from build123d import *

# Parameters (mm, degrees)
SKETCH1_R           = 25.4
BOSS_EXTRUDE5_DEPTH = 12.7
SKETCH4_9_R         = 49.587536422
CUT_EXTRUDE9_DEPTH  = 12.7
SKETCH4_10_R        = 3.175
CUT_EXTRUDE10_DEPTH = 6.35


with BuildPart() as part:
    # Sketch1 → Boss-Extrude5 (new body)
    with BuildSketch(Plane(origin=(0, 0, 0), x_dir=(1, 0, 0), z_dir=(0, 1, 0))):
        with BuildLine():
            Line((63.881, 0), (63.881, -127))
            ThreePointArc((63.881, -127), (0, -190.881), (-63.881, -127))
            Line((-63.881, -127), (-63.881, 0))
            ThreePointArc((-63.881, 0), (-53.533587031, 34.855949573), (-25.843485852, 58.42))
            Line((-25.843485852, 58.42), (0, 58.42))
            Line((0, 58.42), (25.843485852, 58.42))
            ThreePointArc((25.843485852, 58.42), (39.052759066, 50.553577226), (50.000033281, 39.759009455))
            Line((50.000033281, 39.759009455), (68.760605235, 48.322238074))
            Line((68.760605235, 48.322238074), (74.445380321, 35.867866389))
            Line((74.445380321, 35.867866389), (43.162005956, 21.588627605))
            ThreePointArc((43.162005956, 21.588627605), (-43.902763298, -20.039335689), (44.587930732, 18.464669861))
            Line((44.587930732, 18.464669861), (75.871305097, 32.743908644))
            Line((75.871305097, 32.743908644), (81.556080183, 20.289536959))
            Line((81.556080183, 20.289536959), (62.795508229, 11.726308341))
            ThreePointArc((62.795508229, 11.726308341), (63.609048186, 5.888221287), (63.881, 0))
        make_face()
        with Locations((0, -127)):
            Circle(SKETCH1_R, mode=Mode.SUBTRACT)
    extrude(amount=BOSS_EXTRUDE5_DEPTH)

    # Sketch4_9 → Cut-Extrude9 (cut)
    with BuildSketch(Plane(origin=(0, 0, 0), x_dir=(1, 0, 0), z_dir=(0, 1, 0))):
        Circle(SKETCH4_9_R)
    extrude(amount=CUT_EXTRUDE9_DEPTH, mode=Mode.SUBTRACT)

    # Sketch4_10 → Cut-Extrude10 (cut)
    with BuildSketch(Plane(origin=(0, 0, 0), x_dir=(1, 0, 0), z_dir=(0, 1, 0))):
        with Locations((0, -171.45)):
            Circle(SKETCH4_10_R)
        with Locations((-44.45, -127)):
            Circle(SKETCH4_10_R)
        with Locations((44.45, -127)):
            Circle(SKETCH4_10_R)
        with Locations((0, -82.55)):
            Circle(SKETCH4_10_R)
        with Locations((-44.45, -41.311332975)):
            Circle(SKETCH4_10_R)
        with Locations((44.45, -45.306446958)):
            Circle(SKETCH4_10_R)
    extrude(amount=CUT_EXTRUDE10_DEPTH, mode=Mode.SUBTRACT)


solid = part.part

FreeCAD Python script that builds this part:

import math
import FreeCAD as App
import Part
import Sketcher
Q = App.Units.Quantity

doc = App.newDocument("Part")
params = doc.addObject("Spreadsheet::Sheet", "Params")
for row, (alias, value) in enumerate([
    ("sketch1_diameter", "2 in"),
    ("sketch1_radius", "1.9 in"),
    ("sketch1_height", "5 in"),
    ("sketch1_radius2", "2.515 in"),
    ("pad1_length", "0.5 in"),
    ("pocket1_length", "0.5 in"),
    ("sketch3_diameter", "0.25 in"),
    ("pocket2_length", "0.25 in"),
], start=1):
    params.set(f"A{row}", alias)
    params.set(f"B{row}", "=" + value)
    params.setAlias(f"B{row}", alias)

body = doc.addObject("PartDesign::Body", "Body")

# Sketch on XZ plane
sketch1 = body.newObject("Sketcher::SketchObject", "Sketch")
sketch1.AttachmentSupport = (doc.getObject("XZ_Plane"), [""])
sketch1.MapMode = "FlatFace"
sketch1.addGeometry([
    Part.LineSegment(App.Vector(63.9, 127, 0), App.Vector(63.9, 0, 0)),  # 0
    Part.ArcOfCircle(Part.Circle(App.Vector(0, 0, 0), App.Vector(0, 0, 1), 63.9), math.radians(-10.58), math.radians(0)),  # 1
    Part.LineSegment(App.Vector(62.8, -11.7, 0), App.Vector(81.6, -20.3, 0)),  # 2
    Part.LineSegment(App.Vector(81.6, -20.3, 0), App.Vector(75.9, -32.7, 0)),  # 3
    Part.LineSegment(App.Vector(75.9, -32.7, 0), App.Vector(44.6, -18.5, 0)),  # 4
    Part.ArcOfCircle(Part.Circle(App.Vector(0, 0, 0), App.Vector(0, 0, 1), 48.3), math.radians(-22), math.radians(333)),  # 5
    Part.LineSegment(App.Vector(43.2, -21.6, 0), App.Vector(74.4, -35.9, 0)),  # 6
    Part.LineSegment(App.Vector(74.4, -35.9, 0), App.Vector(68.8, -48.3, 0)),  # 7
    Part.LineSegment(App.Vector(68.8, -48.3, 0), App.Vector(50, -39.8, 0)),  # 8
    Part.ArcOfCircle(Part.Circle(App.Vector(0, 0, 0), App.Vector(0, 0, 1), 63.9), math.radians(-66), math.radians(-38)),  # 9
    Part.LineSegment(App.Vector(25.8, -58.4, 0), App.Vector(-25.8, -58.4, 0)),  # 10
    Part.ArcOfCircle(Part.Circle(App.Vector(0, 0, 0), App.Vector(0, 0, 1), 63.9), math.radians(180), math.radians(246)),  # 11
    Part.LineSegment(App.Vector(-63.9, 0, 0), App.Vector(-63.9, 127, 0)),  # 12
    Part.ArcOfCircle(Part.Circle(App.Vector(0, 127, 0), App.Vector(0, 0, 1), 63.9), math.radians(0), math.radians(180)),  # 13
    Part.Circle(App.Vector(0, 127, 0), App.Vector(0, 0, 1), 25.4),  # 14
], False)
sketch1.addConstraint([
    Sketcher.Constraint("Tangent", 0, 2, 1, 2),
    Sketcher.Constraint("Coincident", 1, 1, 2, 1),
    Sketcher.Constraint("Coincident", 2, 2, 3, 1),
    Sketcher.Constraint("Coincident", 3, 2, 4, 1),
    Sketcher.Constraint("Coincident", 4, 2, 5, 1),
    Sketcher.Constraint("Coincident", 5, 2, 6, 1),
    Sketcher.Constraint("Coincident", 6, 2, 7, 1),
    Sketcher.Constraint("Coincident", 7, 2, 8, 1),
    Sketcher.Constraint("Coincident", 8, 2, 9, 2),
    Sketcher.Constraint("Coincident", 9, 1, 10, 1),
    Sketcher.Constraint("Coincident", 10, 2, 11, 2),
    Sketcher.Constraint("Tangent", 11, 1, 12, 1),
    Sketcher.Constraint("Tangent", 12, 2, 13, 2),
    Sketcher.Constraint("Tangent", 13, 1, 0, 1),
    Sketcher.Constraint("Vertical", 0),
    Sketcher.Constraint("Horizontal", 10),
    Sketcher.Constraint("Vertical", 12),
    Sketcher.Constraint("Coincident", 1, 3, -1, 1),
    Sketcher.Constraint("Coincident", 5, 3, -1, 1),
    Sketcher.Constraint("Coincident", 9, 3, -1, 1),
    Sketcher.Constraint("Coincident", 11, 3, -1, 1),
    Sketcher.Constraint("Coincident", 14, 3, 13, 3),
    Sketcher.Constraint("Equal", 1, 9),
    Sketcher.Constraint("Equal", 9, 11),
    Sketcher.Constraint("Perpendicular", 2, 3),
    Sketcher.Constraint("Perpendicular", 3, 4),
    Sketcher.Constraint("Parallel", 4, 6),
    Sketcher.Constraint("Perpendicular", 6, 7),
    Sketcher.Constraint("Perpendicular", 7, 8),
    Sketcher.Constraint("Equal", 4, 6),
    Sketcher.Constraint("Equal", 3, 7),
    Sketcher.Constraint("Equal", 2, 8),
    Sketcher.Constraint("Diameter", 14, Q("2 in")),
    Sketcher.Constraint("Radius", 5, Q("1.9 in")),
    Sketcher.Constraint("DistanceY", 0, 2, 0, 1, Q("5 in")),
    Sketcher.Constraint("Radius", 1, Q("2.515 in")),
    Sketcher.Constraint("DistanceY", 9, 1, -1, 1, Q("2.3 in")),
    Sketcher.Constraint("DistanceY", 3, 2, 1, 1, Q("21.0176 mm")),
    Sketcher.Constraint("DistanceX", 5, 2, 3, 2, Q("32.709299 mm")),
    Sketcher.Constraint("DistanceX", 6, 2, 2, 2, Q("7.1107 mm")),
    Sketcher.Constraint("DistanceY", 7, 2, 2, 2, Q("28.032701 mm")),
])
sketch1.setExpression("Constraints[32]", "Params.sketch1_diameter")
sketch1.setExpression("Constraints[33]", "Params.sketch1_radius")
sketch1.setExpression("Constraints[34]", "Params.sketch1_height")
sketch1.setExpression("Constraints[35]", "Params.sketch1_radius2")
pad1 = body.newObject("PartDesign::Pad", "Pad")
pad1.Profile = sketch1
pad1.setExpression("Length", "Params.pad1_length")
pad1.Reversed = True

# Sketch on XZ plane
sketch2 = body.newObject("Sketcher::SketchObject", "Sketch001")
sketch2.AttachmentSupport = (doc.getObject("XZ_Plane"), [""])
sketch2.MapMode = "FlatFace"
sketch2.addGeometry(Part.Circle(App.Vector(0, 0, 0), App.Vector(0, 0, 1), 50), False)
sketch2.addConstraint([
    Sketcher.Constraint("Coincident", 0, 3, -1, 1),
    Sketcher.Constraint("Diameter", 0, Q("99.175073 mm")),
])
pocket1 = body.newObject("PartDesign::Pocket", "Pocket")
pocket1.Profile = sketch2
pocket1.setExpression("Length", "Params.pocket1_length")

# Sketch on XZ plane
sketch3 = body.newObject("Sketcher::SketchObject", "Sketch002")
sketch3.AttachmentSupport = (doc.getObject("XZ_Plane"), [""])
sketch3.MapMode = "FlatFace"
sketch3.addGeometry([
    Part.Circle(App.Vector(0, 171.4, 0), App.Vector(0, 0, 1), 3.2),  # 0
    Part.Circle(App.Vector(-44.5, 127, 0), App.Vector(0, 0, 1), 3.2),  # 1
    Part.Circle(App.Vector(44.5, 127, 0), App.Vector(0, 0, 1), 3.2),  # 2
    Part.Circle(App.Vector(0, 82.5, 0), App.Vector(0, 0, 1), 3.2),  # 3
    Part.Circle(App.Vector(-44.5, 41.3, 0), App.Vector(0, 0, 1), 3.2),  # 4
    Part.Circle(App.Vector(44.5, 45.3, 0), App.Vector(0, 0, 1), 3.2),  # 5
], False)
sketch3.addConstraint([
    Sketcher.Constraint("Equal", 0, 1),
    Sketcher.Constraint("Equal", 1, 2),
    Sketcher.Constraint("Equal", 2, 3),
    Sketcher.Constraint("Equal", 3, 4),
    Sketcher.Constraint("Equal", 4, 5),
    Sketcher.Constraint("Symmetric", 1, 3, 2, 3, -2),
    Sketcher.Constraint("PointOnObject", 0, 3, -2),
    Sketcher.Constraint("PointOnObject", 3, 3, -2),
    Sketcher.Constraint("Vertical", 1, 3, 4, 3),
    Sketcher.Constraint("Vertical", 2, 3, 5, 3),
    Sketcher.Constraint("Diameter", 0, Q("0.25 in")),
    Sketcher.Constraint("DistanceY", -1, 1, 1, 3, Q("5 in")),
    Sketcher.Constraint("DistanceX", 1, 3, 2, 3, Q("3.5 in")),
    Sketcher.Constraint("DistanceY", 3, 3, 0, 3, Q("3.5 in")),
    Sketcher.Constraint("DistanceY", -1, 1, 0, 3, Q("6.75 in")),
    Sketcher.Constraint("DistanceY", -1, 1, 4, 3, Q("41.311333 mm")),
    Sketcher.Constraint("DistanceY", -1, 1, 5, 3, Q("45.306447 mm")),
])
sketch3.setExpression("Constraints[10]", "Params.sketch3_diameter")
pocket2 = body.newObject("PartDesign::Pocket", "Pocket001")
pocket2.Profile = sketch3
pocket2.setExpression("Length", "Params.pocket2_length")

doc.recompute()
